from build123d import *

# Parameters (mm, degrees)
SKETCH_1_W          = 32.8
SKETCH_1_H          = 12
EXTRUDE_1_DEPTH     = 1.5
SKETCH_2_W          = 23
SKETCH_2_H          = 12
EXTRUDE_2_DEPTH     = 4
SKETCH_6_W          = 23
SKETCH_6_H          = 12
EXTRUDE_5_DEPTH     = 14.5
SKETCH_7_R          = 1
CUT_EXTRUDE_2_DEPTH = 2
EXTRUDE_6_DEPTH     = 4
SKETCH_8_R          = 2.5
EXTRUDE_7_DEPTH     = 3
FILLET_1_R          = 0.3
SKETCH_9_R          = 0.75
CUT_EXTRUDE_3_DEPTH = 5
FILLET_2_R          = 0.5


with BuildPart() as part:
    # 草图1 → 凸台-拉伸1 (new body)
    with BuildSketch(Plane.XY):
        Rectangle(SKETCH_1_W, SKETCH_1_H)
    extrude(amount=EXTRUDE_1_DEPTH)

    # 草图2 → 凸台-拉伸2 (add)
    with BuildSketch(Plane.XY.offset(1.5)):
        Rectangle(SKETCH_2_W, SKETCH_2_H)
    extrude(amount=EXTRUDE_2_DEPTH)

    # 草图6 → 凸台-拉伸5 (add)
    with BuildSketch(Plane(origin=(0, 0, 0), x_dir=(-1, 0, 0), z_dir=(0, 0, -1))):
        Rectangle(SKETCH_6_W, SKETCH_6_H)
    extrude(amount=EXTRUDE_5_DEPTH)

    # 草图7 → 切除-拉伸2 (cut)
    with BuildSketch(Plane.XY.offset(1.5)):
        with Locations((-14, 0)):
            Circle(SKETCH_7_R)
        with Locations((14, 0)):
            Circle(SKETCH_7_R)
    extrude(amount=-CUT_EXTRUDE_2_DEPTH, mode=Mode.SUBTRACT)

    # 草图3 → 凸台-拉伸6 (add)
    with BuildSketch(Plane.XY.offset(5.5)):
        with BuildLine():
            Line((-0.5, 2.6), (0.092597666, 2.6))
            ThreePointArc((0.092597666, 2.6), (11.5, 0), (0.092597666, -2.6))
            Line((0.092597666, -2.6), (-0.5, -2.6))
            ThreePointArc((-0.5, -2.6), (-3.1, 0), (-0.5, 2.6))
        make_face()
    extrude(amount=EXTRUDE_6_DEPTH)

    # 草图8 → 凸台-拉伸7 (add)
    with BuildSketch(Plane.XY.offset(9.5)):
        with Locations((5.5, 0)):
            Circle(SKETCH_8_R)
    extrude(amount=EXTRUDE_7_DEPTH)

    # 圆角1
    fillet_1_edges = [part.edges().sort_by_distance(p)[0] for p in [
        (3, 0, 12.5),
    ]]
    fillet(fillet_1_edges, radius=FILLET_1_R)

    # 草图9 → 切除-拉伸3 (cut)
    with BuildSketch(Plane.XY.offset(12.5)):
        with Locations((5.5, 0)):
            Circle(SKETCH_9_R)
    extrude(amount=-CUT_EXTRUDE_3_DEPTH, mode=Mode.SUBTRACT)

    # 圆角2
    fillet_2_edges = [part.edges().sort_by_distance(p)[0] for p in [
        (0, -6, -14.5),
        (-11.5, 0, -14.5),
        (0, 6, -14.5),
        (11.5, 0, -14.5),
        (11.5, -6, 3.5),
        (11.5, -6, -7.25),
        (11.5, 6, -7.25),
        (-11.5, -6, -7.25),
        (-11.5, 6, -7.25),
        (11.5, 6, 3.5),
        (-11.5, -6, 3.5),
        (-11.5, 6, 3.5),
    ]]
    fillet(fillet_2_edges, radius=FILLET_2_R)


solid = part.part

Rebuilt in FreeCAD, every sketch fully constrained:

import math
import FreeCAD as App
import Part
import Sketcher


def edges_at(feature, points):
    """Names of the edges that pass closest to the given points."""
    edges = feature.Shape.Edges
    near = lambda p: min(range(len(edges)), key=lambda i: edges[i].distToShape(Part.Vertex(*p))[0])
    return sorted({f"Edge{near(p) + 1}" for p in points})


def add_polygon(sketch, points):
    """Adds a closed chain of lines whose ends are joined by coincident constraints."""
    first, n = sketch.GeometryCount, len(points)
    for a, b in zip(points, points[1:] + points[:1]):
        sketch.addGeometry(Part.LineSegment(App.Vector(*a, 0), App.Vector(*b, 0)), False)
    for i in range(n):
        sketch.addConstraint(Sketcher.Constraint("Coincident", first + i, 2, first + (i + 1) % n, 1))

doc = App.newDocument("Part")
body = doc.addObject("PartDesign::Body", "Body")

sketch1 = body.newObject("Sketcher::SketchObject", "Sketch")
sketch1.AttachmentSupport = (doc.getObject("XY_Plane"), [""])
sketch1.MapMode = "FlatFace"
add_polygon(sketch1, [(-16.4, 6), (-16.4, -6), (16.4, -6), (16.4, 6)])
sketch1.addConstraint([
    Sketcher.Constraint("Vertical", 0),
    Sketcher.Constraint("Horizontal", 1),
    Sketcher.Constraint("Vertical", 2),
    Sketcher.Constraint("Horizontal", 3),
    Sketcher.Constraint("Symmetric", 0, 2, 2, 2, -1, 1),
    Sketcher.Constraint("DistanceY", 0, 2, 0, 1, 12.0),
    Sketcher.Constraint("DistanceX", 1, 1, 1, 2, 32.8),
])
pad1 = body.newObject("PartDesign::Pad", "Pad")
pad1.Profile = sketch1
pad1.Length = 1.5

sketch2 = body.newObject("Sketcher::SketchObject", "Sketch001")
sketch2.AttachmentSupport = (doc.getObject("XY_Plane"), [""])
sketch2.MapMode = "FlatFace"
sketch2.AttachmentOffset = App.Placement(App.Vector(0, 0, 1.5), App.Rotation())
add_polygon(sketch2, [(-11.5, 6), (-11.5, -6), (11.5, -6), (11.5, 6)])
sketch2.addConstraint([
    Sketcher.Constraint("Vertical", 0),
    Sketcher.Constraint("Horizontal", 1),
    Sketcher.Constraint("Vertical", 2),
    Sketcher.Constraint("Horizontal", 3),
    Sketcher.Constraint("Symmetric", 0, 2, 2, 2, -1, 1),
    Sketcher.Constraint("DistanceX", 1, 1, 1, 2, 23.0),
    Sketcher.Constraint("DistanceY", 0, 2, 0, 1, 12.0),
])
pad2 = body.newObject("PartDesign::Pad", "Pad001")
pad2.Profile = sketch2
pad2.Length = 4

sketch3 = body.newObject("Sketcher::SketchObject", "Sketch002")
sketch3.AttachmentSupport = (doc.getObject("XY_Plane"), [""])
sketch3.MapMode = "FlatFace"
add_polygon(sketch3, [(11.5, 6), (11.5, -6), (-11.5, -6), (-11.5, 6)])
sketch3.addConstraint([
    Sketcher.Constraint("Vertical", 0),
    Sketcher.Constraint("Horizontal", 1),
    Sketcher.Constraint("Vertical", 2),
    Sketcher.Constraint("Horizontal", 3),
    Sketcher.Constraint("Symmetric", 0, 2, 2, 2, -1, 1),
    Sketcher.Constraint("DistanceX", 1, 2, 1, 1, 23.0),
    Sketcher.Constraint("DistanceY", 0, 2, 0, 1, 12.0),
])
pad3 = body.newObject("PartDesign::Pad", "Pad002")
pad3.Profile = sketch3
pad3.Length = 14.5
pad3.Reversed = True

sketch4 = body.newObject("Sketcher::SketchObject", "Sketch003")
sketch4.AttachmentSupport = (doc.getObject("XY_Plane"), [""])
sketch4.MapMode = "FlatFace"
sketch4.AttachmentOffset = App.Placement(App.Vector(0, 0, 1.5), App.Rotation())
sketch4.addGeometry([
    Part.Circle(App.Vector(-14, 0, 0), App.Vector(0, 0, 1), 1),
    Part.Circle(App.Vector(14, 0, 0), App.Vector(0, 0, 1), 1),
], False)
sketch4.addConstraint([
    Sketcher.Constraint("Equal", 0, 1),
    Sketcher.Constraint("Symmetric", 0, 3, 1, 3, -1, 1),
    Sketcher.Constraint("PointOnObject", 0, 3, -1),
    Sketcher.Constraint("Diameter", 0, 2.0),
    Sketcher.Constraint("DistanceX", 0, 3, -1, 1, 14.0),
])
pocket1 = body.newObject("PartDesign::Pocket", "Pocket")
pocket1.Profile = sketch4
pocket1.Length = 2

sketch5 = body.newObject("Sketcher::SketchObject", "Sketch004")
sketch5.AttachmentSupport = (doc.getObject("XY_Plane"), [""])
sketch5.MapMode = "FlatFace"
sketch5.AttachmentOffset = App.Placement(App.Vector(0, 0, 5.5), App.Rotation())
sketch5.addGeometry([
    Part.LineSegment(App.Vector(0.092598, 2.6, 0), App.Vector(-0.5, 2.6, 0)),
    Part.ArcOfCircle(Part.Circle(App.Vector(-0.5, 0, 0), App.Vector(0, 0, 1), 2.6), math.radians(90), math.radians(270)),
    Part.LineSegment(App.Vector(-0.5, -2.6, 0), App.Vector(0.092598, -2.6, 0)),
    Part.ArcOfCircle(Part.Circle(App.Vector(5.5, 0, 0), App.Vector(0, 0, 1), 6), math.radians(-154.320711), math.radians(154.320711)),
], False)
sketch5.addConstraint([
    Sketcher.Constraint("Tangent", 0, 2, 1, 1),
    Sketcher.Constraint("Tangent", 1, 2, 2, 1),
    Sketcher.Constraint("Coincident", 2, 2, 3, 1),
    Sketcher.Constraint("Coincident", 3, 2, 0, 1),
    Sketcher.Constraint("Horizontal", 0),
    Sketcher.Constraint("Horizontal", 2),
    Sketcher.Constraint("Symmetric", 2, 2, 3, 2, -1),
    Sketcher.Constraint("Radius", 3, 6.0),
    Sketcher.Constraint("Radius", 1, 2.6),
    Sketcher.Constraint("DistanceX", 1, 3, 3, 3, 6.0),
    Sketcher.Constraint("DistanceX", 1, 3, -1, 1, 0.5),
])
pad4 = body.newObject("PartDesign::Pad", "Pad003")
pad4.Profile = sketch5
pad4.Length = 4

sketch6 = body.newObject("Sketcher::SketchObject", "Sketch005")
sketch6.AttachmentSupport = (doc.getObject("XY_Plane"), [""])
sketch6.MapMode = "FlatFace"
sketch6.AttachmentOffset = App.Placement(App.Vector(0, 0, 9.5), App.Rotation())
sketch6.addGeometry(Part.Circle(App.Vector(5.5, 0, 0), App.Vector(0, 0, 1), 2.5), False)
sketch6.addConstraint([
    Sketcher.Constraint("PointOnObject", 0, 3, -1),
    Sketcher.Constraint("Diameter", 0, 5.0),
    Sketcher.Constraint("DistanceX", -1, 1, 0, 3, 5.5),
])
pad5 = body.newObject("PartDesign::Pad", "Pad004")
pad5.Profile = sketch6
pad5.Length = 3
doc.recompute()

fillet = body.newObject("PartDesign::Fillet", "Fillet")
fillet.Base = (pad5, edges_at(pad5, [(3, 0, 12.5)]))
fillet.Radius = 0.3

sketch7 = body.newObject("Sketcher::SketchObject", "Sketch006")
sketch7.AttachmentSupport = (doc.getObject("XY_Plane"), [""])
sketch7.MapMode = "FlatFace"
sketch7.AttachmentOffset = App.Placement(App.Vector(0, 0, 12.5), App.Rotation())
sketch7.addGeometry(Part.Circle(App.Vector(5.5, 0, 0), App.Vector(0, 0, 1), 0.75), False)
sketch7.addConstraint([
    Sketcher.Constraint("PointOnObject", 0, 3, -1),
    Sketcher.Constraint("Diameter", 0, 1.5),
    Sketcher.Constraint("DistanceX", -1, 1, 0, 3, 5.5),
])
pocket2 = body.newObject("PartDesign::Pocket", "Pocket001")
pocket2.Profile = sketch7
pocket2.Length = 5
doc.recompute()

fillet2 = body.newObject("PartDesign::Fillet", "Fillet001")
fillet2.Base = (pocket2, edges_at(pocket2, [
    (0, -6, -14.5),
    (-11.5, 0, -14.5),
    (0, 6, -14.5),
    (11.5, 0, -14.5),
    (11.5, -6, 3.5),
    (11.5, -6, -7.25),
    (11.5, 6, -7.25),
    (-11.5, -6, -7.25),
    (-11.5, 6, -7.25),
    (11.5, 6, 3.5),
    (-11.5, -6, 3.5),
    (-11.5, 6, 3.5),
]))
fillet2.Radius = 0.5

doc.recompute()
